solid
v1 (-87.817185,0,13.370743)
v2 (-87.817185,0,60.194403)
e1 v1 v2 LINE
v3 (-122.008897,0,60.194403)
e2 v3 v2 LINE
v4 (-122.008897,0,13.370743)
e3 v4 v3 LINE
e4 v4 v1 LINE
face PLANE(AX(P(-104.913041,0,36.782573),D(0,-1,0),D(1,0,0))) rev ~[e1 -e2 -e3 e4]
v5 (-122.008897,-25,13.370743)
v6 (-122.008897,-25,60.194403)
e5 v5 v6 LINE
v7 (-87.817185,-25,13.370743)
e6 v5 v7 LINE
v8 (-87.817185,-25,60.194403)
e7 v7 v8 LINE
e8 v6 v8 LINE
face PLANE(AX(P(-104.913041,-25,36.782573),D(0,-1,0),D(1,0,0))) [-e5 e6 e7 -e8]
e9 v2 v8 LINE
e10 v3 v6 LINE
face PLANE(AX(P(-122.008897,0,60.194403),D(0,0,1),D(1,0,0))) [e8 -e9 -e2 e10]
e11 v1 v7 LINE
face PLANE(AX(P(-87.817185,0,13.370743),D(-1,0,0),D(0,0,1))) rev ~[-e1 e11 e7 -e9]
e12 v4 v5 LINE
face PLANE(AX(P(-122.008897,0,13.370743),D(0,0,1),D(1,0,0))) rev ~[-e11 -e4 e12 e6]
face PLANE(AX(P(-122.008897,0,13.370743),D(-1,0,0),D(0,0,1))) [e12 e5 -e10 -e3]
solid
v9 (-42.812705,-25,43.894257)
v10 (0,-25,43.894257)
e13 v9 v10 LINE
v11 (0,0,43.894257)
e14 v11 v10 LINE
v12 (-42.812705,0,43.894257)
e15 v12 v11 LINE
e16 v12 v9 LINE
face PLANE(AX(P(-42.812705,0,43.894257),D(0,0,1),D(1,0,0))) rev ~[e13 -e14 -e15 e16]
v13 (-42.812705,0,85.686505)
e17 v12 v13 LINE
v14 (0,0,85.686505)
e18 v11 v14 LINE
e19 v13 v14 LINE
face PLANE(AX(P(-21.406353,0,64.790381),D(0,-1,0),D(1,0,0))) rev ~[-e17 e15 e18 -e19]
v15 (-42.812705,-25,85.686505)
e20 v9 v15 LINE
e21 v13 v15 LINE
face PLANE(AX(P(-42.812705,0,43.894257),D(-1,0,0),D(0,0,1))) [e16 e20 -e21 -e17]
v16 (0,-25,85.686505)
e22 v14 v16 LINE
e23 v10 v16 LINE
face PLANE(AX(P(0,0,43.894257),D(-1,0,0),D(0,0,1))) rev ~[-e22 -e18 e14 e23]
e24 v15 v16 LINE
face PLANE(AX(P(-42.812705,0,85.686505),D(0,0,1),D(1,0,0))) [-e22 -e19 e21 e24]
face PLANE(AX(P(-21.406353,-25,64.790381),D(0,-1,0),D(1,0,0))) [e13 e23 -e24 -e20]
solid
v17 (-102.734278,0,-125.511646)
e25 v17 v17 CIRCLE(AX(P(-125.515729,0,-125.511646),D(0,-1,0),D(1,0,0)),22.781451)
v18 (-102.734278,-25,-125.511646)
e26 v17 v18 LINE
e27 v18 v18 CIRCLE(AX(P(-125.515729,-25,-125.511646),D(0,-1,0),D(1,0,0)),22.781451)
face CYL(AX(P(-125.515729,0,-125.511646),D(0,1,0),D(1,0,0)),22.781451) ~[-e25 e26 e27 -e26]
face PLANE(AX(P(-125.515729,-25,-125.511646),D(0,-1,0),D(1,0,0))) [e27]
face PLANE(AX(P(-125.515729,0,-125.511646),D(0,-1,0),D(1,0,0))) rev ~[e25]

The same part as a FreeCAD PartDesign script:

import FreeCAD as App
import Part
import Sketcher
Q = App.Units.Quantity


def add_polygon(sketch, points):
    """Adds a closed chain of lines whose ends are joined by coincident constraints."""
    first, n = sketch.GeometryCount, len(points)
    for a, b in zip(points, points[1:] + points[:1]):
        sketch.addGeometry(Part.LineSegment(App.Vector(*a, 0), App.Vector(*b, 0)), False)
    for i in range(n):
        sketch.addConstraint(Sketcher.Constraint("Coincident", first + i, 2, first + (i + 1) % n, 1))

doc = App.newDocument("Part")
body = doc.addObject("PartDesign::Body", "Body")
body.AllowCompound = True

# Sketch on XZ plane
sketch1 = body.newObject("Sketcher::SketchObject", "Sketch")
sketch1.AttachmentSupport = (doc.getObject("XZ_Plane"), [""])
sketch1.MapMode = "FlatFace"
add_polygon(sketch1, [(-122.008897, 60.194403), (-122.008897, 13.370743), (-87.817185, 13.370743), (-87.817185, 60.194403)])  # lines 0-3
add_polygon(sketch1, [(-42.812705, 85.686505), (-42.812705, 43.894257), (0, 43.894257), (0, 85.686505)])  # lines 4-7
sketch1.addConstraint(Sketcher.Constraint("Vertical", 0))
sketch1.addConstraint(Sketcher.Constraint("Horizontal", 1))
sketch1.addConstraint(Sketcher.Constraint("Vertical", 2))
sketch1.addConstraint(Sketcher.Constraint("Horizontal", 3))
sketch1.addConstraint(Sketcher.Constraint("Vertical", 4))
sketch1.addConstraint(Sketcher.Constraint("Horizontal", 5))
sketch1.addConstraint(Sketcher.Constraint("Vertical", 6))
sketch1.addConstraint(Sketcher.Constraint("Horizontal", 7))
sketch1.addConstraint(Sketcher.Constraint("PointOnObject", 5, 2, -2))
sketch1.addConstraint(Sketcher.Constraint("DistanceY", 0, 2, 0, 1, Q("46.82366 mm")))
sketch1.addConstraint(Sketcher.Constraint("DistanceY", 2, 2, 6, 2, Q("25.492102 mm")))
sketch1.addConstraint(Sketcher.Constraint("DistanceX", 1, 1, 1, 2, Q("34.191712 mm")))
sketch1.addConstraint(Sketcher.Constraint("DistanceX", 5, 1, 5, 2, Q("42.812705 mm")))
sketch1.addConstraint(Sketcher.Constraint("DistanceY", 4, 2, 4, 1, Q("41.792248 mm")))
sketch1.addConstraint(Sketcher.Constraint("DistanceX", 2, 2, 4, 2, Q("45.004479 mm")))
sketch1.addConstraint(Sketcher.Constraint("DistanceY", -1, 1, 0, 2, Q("13.370743 mm")))
pad1 = body.newObject("PartDesign::Pad", "Pad")
pad1.Profile = sketch1
pad1.Length = 25
body2 = doc.addObject("PartDesign::Body", "Body001")

# Sketch on XZ plane
sketch2 = body2.newObject("Sketcher::SketchObject", "Sketch001")
sketch2.AttachmentSupport = (doc.getObject("XZ_Plane001"), [""])
sketch2.MapMode = "FlatFace"
sketch2.addGeometry(Part.Circle(App.Vector(-125.515729, -125.511646, 0), App.Vector(0, 0, 1), 22.781451), False)
sketch2.addConstraint(Sketcher.Constraint("Diameter", 0, Q("45.562902 mm")))
sketch2.addConstraint(Sketcher.Constraint("DistanceX", 0, 3, -1, 1, Q("125.515729 mm")))
sketch2.addConstraint(Sketcher.Constraint("DistanceY", 0, 3, -1, 1, Q("125.511646 mm")))
pad2 = body2.newObject("PartDesign::Pad", "Pad001")
pad2.Profile = sketch2
pad2.Length = 25

doc.recompute()
